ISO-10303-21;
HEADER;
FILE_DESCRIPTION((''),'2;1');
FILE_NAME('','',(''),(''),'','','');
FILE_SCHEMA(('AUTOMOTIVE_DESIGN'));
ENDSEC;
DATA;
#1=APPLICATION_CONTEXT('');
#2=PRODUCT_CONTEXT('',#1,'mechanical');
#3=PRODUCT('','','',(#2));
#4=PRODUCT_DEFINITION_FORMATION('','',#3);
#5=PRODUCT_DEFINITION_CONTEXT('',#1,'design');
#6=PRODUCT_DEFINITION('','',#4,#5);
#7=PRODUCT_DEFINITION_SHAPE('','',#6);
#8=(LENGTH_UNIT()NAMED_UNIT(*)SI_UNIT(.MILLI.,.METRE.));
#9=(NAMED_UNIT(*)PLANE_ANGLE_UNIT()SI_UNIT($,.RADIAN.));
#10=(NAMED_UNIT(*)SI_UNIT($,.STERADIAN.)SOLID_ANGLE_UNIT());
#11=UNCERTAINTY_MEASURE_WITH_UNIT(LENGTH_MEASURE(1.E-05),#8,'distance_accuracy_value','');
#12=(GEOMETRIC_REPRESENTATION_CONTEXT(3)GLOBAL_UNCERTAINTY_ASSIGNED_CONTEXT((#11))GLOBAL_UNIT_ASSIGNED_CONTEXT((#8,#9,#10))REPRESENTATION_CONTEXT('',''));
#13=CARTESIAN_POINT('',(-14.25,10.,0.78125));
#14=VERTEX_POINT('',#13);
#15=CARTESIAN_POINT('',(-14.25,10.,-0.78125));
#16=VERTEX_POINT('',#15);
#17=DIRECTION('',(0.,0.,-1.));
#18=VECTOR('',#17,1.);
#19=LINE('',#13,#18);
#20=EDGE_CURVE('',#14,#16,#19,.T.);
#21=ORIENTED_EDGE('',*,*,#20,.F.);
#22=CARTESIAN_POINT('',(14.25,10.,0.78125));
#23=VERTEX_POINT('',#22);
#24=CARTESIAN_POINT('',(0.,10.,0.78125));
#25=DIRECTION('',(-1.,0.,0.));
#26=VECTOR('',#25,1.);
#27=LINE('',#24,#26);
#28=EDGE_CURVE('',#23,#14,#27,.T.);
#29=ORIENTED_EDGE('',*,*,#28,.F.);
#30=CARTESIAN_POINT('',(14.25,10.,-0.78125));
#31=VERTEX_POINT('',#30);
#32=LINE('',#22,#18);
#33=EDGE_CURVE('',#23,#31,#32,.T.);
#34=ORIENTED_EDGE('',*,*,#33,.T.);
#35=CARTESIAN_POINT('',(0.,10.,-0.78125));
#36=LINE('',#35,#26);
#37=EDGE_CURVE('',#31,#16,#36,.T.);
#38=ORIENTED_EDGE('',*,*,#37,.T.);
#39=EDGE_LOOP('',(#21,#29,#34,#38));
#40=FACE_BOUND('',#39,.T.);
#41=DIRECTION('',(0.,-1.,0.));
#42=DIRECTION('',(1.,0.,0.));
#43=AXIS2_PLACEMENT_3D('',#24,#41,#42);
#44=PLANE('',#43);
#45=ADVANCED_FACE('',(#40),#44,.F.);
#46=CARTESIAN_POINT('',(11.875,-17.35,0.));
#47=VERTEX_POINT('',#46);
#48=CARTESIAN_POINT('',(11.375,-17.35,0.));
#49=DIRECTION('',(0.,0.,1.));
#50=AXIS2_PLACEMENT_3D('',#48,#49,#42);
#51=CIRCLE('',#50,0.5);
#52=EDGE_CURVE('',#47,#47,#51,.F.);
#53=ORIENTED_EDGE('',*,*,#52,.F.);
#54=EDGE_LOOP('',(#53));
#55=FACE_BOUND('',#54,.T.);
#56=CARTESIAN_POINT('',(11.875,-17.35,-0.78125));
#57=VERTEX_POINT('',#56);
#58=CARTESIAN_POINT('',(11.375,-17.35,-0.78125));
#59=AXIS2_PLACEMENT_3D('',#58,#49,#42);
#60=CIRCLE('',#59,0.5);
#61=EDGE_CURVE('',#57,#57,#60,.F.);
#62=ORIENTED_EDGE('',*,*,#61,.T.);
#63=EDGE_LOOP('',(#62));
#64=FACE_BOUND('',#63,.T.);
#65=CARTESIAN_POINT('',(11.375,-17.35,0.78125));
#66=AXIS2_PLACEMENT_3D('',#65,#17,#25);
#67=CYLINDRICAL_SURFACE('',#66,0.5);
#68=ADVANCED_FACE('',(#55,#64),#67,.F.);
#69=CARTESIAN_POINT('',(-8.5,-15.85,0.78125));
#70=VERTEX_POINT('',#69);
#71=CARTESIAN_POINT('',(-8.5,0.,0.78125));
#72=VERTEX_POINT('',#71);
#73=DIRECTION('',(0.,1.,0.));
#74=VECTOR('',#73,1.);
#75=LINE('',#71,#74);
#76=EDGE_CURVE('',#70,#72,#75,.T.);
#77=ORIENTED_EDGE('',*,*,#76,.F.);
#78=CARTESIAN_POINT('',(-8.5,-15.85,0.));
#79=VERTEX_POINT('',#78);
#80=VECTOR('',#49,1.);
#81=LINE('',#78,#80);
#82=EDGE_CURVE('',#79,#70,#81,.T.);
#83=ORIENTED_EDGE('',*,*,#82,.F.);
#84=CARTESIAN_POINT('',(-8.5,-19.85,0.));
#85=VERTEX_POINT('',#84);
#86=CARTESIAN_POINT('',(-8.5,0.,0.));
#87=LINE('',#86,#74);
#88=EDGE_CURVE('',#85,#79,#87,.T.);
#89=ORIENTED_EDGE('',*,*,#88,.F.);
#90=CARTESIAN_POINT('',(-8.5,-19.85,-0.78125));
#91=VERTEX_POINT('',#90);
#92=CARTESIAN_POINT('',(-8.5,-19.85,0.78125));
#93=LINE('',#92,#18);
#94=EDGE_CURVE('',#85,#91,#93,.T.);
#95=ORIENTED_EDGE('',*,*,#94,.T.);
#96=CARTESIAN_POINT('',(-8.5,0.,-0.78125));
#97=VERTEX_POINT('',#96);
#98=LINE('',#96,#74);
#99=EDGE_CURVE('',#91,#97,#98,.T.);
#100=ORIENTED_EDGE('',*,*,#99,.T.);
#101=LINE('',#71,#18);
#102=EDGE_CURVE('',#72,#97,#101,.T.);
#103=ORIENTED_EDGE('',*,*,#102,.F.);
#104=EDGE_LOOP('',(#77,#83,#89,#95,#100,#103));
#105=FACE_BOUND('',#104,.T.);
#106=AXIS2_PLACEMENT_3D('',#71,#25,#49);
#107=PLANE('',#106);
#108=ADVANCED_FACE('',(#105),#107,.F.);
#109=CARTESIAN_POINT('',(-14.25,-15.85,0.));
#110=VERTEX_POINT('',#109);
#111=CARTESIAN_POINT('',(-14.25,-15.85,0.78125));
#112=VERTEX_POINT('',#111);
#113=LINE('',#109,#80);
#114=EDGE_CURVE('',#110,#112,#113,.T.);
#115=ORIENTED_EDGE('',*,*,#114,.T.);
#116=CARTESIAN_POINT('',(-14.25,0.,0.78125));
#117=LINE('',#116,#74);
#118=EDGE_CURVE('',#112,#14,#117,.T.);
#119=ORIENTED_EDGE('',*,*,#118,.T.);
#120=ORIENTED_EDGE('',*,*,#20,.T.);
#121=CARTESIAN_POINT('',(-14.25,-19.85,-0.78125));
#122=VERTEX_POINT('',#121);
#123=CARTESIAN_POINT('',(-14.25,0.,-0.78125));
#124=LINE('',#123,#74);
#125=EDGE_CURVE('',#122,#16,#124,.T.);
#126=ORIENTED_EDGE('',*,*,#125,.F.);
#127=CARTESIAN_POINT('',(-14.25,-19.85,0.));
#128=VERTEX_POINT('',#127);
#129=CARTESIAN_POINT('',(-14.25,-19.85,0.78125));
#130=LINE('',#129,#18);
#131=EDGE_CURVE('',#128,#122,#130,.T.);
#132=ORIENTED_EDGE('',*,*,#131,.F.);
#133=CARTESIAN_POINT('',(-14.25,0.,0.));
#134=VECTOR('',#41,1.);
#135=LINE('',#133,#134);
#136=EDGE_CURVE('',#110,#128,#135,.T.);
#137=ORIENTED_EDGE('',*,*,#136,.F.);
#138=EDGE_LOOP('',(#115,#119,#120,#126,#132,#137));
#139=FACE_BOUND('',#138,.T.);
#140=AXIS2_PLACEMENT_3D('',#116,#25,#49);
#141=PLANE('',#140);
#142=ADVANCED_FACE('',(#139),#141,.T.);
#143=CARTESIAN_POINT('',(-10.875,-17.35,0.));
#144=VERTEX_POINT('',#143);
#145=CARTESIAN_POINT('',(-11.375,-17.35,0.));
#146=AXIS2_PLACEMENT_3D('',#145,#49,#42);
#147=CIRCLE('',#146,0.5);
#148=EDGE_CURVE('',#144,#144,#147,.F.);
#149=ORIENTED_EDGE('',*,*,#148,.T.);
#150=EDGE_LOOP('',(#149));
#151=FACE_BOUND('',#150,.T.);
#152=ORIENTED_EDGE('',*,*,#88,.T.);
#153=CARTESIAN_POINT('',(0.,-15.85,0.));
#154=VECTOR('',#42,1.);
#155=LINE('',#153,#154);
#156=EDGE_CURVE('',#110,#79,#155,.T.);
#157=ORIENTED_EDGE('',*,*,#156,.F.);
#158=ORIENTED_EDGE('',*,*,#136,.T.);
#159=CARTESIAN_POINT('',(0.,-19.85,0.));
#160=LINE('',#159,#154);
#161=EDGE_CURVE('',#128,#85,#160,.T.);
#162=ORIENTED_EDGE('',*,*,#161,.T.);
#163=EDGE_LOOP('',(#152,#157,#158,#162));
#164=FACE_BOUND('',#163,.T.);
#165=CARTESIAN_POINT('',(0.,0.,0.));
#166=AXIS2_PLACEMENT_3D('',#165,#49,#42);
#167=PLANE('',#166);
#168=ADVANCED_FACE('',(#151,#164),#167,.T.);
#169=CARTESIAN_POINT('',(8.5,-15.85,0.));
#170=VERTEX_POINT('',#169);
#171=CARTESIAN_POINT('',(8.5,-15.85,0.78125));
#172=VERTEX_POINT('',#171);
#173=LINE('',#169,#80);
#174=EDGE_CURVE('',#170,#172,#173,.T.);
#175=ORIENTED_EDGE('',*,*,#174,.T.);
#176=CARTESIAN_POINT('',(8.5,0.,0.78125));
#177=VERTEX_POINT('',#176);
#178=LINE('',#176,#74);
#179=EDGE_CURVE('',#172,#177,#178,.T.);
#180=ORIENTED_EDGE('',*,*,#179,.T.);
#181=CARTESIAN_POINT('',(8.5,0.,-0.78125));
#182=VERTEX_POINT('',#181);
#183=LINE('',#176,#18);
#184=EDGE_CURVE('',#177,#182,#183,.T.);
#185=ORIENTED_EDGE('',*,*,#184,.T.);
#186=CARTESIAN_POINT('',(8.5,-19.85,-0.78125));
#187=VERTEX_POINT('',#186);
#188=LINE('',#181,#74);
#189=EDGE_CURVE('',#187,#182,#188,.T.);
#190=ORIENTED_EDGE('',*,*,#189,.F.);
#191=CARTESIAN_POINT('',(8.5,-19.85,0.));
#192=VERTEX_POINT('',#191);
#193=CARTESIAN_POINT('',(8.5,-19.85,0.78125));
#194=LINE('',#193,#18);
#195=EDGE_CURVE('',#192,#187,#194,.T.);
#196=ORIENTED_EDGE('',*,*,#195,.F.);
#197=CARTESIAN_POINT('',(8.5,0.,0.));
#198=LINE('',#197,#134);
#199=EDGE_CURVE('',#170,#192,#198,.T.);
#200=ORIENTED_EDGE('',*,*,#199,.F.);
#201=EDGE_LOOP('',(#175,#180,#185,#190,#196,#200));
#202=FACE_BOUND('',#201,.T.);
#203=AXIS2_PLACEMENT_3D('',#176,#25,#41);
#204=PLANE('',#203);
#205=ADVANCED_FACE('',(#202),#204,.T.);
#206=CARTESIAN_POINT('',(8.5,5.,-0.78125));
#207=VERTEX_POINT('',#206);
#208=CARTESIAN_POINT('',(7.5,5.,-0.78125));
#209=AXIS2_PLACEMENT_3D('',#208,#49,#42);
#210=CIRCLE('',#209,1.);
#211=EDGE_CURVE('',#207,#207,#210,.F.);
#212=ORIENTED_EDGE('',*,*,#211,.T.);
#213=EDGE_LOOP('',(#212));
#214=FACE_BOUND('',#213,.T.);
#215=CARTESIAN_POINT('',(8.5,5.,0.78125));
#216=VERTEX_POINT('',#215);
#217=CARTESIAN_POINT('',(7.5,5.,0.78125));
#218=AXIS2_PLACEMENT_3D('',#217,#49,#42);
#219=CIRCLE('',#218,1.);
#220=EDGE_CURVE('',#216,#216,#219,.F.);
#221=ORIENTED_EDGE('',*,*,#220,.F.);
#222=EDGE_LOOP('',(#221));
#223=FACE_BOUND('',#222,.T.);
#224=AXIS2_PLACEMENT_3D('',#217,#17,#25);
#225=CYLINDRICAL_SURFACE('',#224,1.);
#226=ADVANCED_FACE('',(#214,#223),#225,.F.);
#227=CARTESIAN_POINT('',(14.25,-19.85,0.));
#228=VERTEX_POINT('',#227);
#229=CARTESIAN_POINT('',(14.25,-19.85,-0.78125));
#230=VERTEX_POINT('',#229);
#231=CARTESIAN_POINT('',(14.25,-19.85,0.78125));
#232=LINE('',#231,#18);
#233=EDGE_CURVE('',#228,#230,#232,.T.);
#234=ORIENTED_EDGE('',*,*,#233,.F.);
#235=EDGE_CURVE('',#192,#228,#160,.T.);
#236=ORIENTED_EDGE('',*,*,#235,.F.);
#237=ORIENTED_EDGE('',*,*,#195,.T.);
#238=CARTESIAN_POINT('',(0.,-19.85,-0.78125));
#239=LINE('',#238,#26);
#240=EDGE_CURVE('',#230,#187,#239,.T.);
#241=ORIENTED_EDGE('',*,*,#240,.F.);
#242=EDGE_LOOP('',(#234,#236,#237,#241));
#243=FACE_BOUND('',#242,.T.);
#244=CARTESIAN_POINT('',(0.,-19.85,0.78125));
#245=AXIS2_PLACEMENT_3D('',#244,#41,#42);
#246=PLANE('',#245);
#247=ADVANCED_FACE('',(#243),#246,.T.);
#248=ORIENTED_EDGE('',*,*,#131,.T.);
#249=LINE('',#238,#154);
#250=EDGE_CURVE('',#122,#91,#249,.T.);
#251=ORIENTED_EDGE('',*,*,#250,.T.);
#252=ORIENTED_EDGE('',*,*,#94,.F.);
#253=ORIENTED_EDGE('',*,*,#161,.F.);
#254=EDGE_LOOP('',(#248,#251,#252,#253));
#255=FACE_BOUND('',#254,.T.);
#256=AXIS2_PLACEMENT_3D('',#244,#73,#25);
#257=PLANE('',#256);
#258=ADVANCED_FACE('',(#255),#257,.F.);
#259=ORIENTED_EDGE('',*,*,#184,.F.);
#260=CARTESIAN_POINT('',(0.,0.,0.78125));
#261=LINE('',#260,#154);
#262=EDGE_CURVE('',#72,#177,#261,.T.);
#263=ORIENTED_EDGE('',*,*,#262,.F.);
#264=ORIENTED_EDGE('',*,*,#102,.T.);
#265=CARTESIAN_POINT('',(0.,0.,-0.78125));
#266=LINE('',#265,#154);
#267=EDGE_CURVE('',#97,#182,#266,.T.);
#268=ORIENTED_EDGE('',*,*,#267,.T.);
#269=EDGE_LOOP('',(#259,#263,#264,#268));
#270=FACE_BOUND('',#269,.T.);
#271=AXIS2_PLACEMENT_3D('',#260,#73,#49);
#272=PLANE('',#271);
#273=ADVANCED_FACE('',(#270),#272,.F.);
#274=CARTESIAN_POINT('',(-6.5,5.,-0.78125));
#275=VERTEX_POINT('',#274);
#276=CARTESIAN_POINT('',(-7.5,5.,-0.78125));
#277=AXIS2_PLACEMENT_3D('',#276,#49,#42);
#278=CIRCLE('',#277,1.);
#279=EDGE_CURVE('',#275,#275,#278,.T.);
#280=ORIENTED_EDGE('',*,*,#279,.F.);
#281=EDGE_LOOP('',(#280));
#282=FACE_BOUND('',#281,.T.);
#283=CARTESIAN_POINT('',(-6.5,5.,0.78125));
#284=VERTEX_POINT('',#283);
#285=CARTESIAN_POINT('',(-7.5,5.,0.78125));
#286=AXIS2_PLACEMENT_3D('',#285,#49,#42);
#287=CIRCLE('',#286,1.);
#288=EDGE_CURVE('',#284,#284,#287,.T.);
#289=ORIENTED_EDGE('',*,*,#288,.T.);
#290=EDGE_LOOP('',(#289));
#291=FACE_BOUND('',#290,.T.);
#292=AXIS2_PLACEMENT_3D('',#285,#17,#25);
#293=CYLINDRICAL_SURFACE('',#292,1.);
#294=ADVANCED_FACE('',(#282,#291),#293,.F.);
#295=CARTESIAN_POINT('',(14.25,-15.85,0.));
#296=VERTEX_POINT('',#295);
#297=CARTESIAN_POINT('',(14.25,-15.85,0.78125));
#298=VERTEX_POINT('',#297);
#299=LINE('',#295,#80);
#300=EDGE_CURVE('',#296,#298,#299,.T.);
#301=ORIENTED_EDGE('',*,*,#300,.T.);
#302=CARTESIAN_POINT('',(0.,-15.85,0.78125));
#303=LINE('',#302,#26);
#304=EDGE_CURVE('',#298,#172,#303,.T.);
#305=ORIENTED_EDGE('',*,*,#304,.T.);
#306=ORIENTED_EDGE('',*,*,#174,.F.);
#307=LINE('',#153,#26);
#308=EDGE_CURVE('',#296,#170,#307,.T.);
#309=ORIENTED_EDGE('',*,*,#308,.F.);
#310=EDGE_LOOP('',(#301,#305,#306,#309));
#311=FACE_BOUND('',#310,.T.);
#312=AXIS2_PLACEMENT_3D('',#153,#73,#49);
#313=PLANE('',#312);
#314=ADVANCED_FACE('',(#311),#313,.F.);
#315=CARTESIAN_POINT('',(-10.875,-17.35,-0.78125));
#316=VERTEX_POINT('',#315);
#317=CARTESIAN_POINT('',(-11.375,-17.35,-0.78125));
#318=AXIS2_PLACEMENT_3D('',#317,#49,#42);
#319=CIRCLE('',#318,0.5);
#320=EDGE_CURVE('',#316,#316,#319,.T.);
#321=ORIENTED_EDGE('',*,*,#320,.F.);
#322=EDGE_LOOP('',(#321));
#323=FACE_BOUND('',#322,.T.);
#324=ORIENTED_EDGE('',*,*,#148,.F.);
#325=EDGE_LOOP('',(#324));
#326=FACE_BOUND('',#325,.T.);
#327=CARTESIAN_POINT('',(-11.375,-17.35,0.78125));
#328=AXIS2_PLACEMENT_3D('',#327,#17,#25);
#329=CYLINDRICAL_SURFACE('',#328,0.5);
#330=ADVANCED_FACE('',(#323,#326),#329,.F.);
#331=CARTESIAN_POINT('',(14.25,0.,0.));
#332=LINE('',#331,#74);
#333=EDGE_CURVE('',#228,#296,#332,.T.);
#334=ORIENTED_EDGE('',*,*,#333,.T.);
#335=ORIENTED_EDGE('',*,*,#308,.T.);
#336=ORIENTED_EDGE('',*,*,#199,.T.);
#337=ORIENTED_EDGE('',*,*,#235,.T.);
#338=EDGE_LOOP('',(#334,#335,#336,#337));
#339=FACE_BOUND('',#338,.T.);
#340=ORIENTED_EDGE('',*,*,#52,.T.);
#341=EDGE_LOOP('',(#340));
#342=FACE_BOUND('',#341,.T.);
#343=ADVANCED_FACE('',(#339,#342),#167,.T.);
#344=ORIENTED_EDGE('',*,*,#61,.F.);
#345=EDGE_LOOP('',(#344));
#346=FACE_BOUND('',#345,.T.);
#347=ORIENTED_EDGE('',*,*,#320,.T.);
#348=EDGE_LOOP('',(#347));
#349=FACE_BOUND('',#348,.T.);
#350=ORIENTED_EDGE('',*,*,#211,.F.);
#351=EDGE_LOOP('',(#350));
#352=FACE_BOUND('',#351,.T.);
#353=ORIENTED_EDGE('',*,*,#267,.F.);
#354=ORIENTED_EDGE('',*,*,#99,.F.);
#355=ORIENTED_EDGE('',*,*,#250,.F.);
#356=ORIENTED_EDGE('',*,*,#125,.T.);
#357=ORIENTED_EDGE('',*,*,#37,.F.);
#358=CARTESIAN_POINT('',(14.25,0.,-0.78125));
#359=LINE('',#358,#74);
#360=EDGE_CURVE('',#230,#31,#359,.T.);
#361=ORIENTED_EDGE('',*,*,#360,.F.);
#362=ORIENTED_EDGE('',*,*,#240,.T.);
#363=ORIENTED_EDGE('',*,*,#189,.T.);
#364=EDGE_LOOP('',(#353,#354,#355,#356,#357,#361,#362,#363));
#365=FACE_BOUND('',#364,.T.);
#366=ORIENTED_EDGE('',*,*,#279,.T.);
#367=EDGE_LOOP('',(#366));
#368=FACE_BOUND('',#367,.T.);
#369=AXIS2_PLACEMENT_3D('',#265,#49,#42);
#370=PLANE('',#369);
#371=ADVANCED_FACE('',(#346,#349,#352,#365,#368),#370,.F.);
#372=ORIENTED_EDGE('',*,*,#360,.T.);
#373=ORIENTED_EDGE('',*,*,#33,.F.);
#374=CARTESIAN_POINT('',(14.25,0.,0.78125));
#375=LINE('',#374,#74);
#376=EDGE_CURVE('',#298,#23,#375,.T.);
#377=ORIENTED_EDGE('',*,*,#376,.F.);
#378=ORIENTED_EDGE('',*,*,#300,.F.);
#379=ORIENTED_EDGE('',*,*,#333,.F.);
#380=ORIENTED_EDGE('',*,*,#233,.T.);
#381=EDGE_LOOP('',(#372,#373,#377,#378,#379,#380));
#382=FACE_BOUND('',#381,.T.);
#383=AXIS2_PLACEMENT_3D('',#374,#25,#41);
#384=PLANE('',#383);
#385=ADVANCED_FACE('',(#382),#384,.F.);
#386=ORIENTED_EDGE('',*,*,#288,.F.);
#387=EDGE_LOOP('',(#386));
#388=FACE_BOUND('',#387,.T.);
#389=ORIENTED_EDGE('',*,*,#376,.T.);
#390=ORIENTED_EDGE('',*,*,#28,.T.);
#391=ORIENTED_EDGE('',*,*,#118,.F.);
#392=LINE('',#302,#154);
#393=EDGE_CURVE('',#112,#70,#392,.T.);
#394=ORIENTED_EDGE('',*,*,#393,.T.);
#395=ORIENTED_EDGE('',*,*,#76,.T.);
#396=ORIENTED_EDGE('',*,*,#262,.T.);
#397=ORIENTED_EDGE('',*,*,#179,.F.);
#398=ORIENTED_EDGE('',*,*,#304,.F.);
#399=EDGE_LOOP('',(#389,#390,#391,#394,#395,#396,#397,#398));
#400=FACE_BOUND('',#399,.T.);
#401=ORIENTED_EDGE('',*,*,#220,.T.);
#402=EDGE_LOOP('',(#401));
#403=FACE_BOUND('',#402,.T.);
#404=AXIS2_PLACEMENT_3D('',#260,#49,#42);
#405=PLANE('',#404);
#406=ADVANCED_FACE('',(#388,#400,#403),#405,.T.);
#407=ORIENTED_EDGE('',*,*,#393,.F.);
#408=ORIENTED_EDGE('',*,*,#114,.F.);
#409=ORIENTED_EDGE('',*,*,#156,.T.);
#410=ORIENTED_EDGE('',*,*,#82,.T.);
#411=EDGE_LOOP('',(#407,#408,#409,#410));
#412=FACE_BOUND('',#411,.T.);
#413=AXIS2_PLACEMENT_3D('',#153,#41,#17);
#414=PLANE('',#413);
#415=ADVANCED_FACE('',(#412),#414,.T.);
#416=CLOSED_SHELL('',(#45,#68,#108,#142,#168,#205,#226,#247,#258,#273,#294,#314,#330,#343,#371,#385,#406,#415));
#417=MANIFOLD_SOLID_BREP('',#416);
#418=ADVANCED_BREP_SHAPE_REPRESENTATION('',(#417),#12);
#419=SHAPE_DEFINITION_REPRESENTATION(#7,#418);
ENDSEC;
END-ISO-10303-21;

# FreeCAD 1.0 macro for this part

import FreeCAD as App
import Part
import Sketcher


def add_polygon(sketch, points):
    """Adds a closed chain of lines whose ends are joined by coincident constraints."""
    first, n = sketch.GeometryCount, len(points)
    for a, b in zip(points, points[1:] + points[:1]):
        sketch.addGeometry(Part.LineSegment(App.Vector(*a, 0), App.Vector(*b, 0)), False)
    for i in range(n):
        sketch.addConstraint(Sketcher.Constraint("Coincident", first + i, 2, first + (i + 1) % n, 1))

doc = App.newDocument("Part")
body = doc.addObject("PartDesign::Body", "Body")

sketch1 = body.newObject("Sketcher::SketchObject", "Sketch")
sketch1.AttachmentSupport = (doc.getObject("XY_Plane"), [""])
sketch1.MapMode = "FlatFace"
add_polygon(sketch1, [(-8.5, -19.85), (-8.5, 0), (8.5, 0), (8.5, -19.85), (14.25, -19.85), (14.25, 10), (-14.25, 10), (-14.25, -19.85)])
sketch1.addGeometry(Part.Circle(App.Vector(-11.375, -17.35, 0), App.Vector(0, 0, 1), 0.5), False)
sketch1.addGeometry(Part.Circle(App.Vector(11.375, -17.35, 0), App.Vector(0, 0, 1), 0.5), False)
sketch1.addGeometry(Part.Circle(App.Vector(-7.5, 5, 0), App.Vector(0, 0, 1), 1), False)
sketch1.addGeometry(Part.Circle(App.Vector(7.5, 5, 0), App.Vector(0, 0, 1), 1), False)
sketch1.addConstraint([
    Sketcher.Constraint("Vertical", 0),
    Sketcher.Constraint("Horizontal", 1),
    Sketcher.Constraint("Vertical", 2),
    Sketcher.Constraint("Horizontal", 3),
    Sketcher.Constraint("Vertical", 4),
    Sketcher.Constraint("Horizontal", 5),
    Sketcher.Constraint("Vertical", 6),
    Sketcher.Constraint("Horizontal", 7),
    Sketcher.Constraint("Equal", 8, 9),
    Sketcher.Constraint("Equal", 10, 11),
    Sketcher.Constraint("Symmetric", 0, 2, 1, 2, -1, 1),
    Sketcher.Constraint("Symmetric", 8, 3, 9, 3, -2),
    Sketcher.Constraint("Symmetric", 10, 3, 11, 3, -2),
    Sketcher.Constraint("Symmetric", 3, 2, 6, 2, -2),
    Sketcher.Constraint("Diameter", 8, 1.0),
    Sketcher.Constraint("Diameter", 10, 2.0),
    Sketcher.Constraint("DistanceX", 1, 1, 1, 2, 17.0),
    Sketcher.Constraint("DistanceX", 5, 2, 5, 1, 28.5),
    Sketcher.Constraint("DistanceY", -1, 1, 10, 3, 5.0),
    Sketcher.Constraint("DistanceY", -1, 1, 4, 2, 10.0),
    Sketcher.Constraint("DistanceX", 10, 3, 11, 3, 15.0),
    Sketcher.Constraint("DistanceY", 0, 1, 0, 2, 19.85),
    Sketcher.Constraint("DistanceY", 2, 2, 9, 3, 2.5),
    Sketcher.Constraint("DistanceX", 8, 3, 9, 3, 22.75),
])
pad1 = body.newObject("PartDesign::Pad", "Pad")
pad1.Profile = sketch1
pad1.Length = 1.5625
pad1.Midplane = True

sketch2 = body.newObject("Sketcher::SketchObject", "Sketch001")
sketch2.AttachmentSupport = (doc.getObject("XY_Plane"), [""])
sketch2.MapMode = "FlatFace"
sketch2.AttachmentOffset = App.Placement(App.Vector(0, 0, 0.78125), App.Rotation())
add_polygon(sketch2, [(-14.25, -15.85), (-14.25, -19.85), (-8.5, -19.85), (-8.5, -15.85)])
add_polygon(sketch2, [(8.5, -15.85), (8.5, -19.85), (14.25, -19.85), (14.25, -15.85)])
sketch2.addConstraint([
    Sketcher.Constraint("Vertical", 0),
    Sketcher.Constraint("Horizontal", 1),
    Sketcher.Constraint("Vertical", 2),
    Sketcher.Constraint("Horizontal", 3),
    Sketcher.Constraint("Vertical", 4),
    Sketcher.Constraint("Horizontal", 5),
    Sketcher.Constraint("Vertical", 6),
    Sketcher.Constraint("Horizontal", 7),
    Sketcher.Constraint("Symmetric", 1, 2, 4, 2, -2),
    Sketcher.Constraint("Symmetric", 3, 2, 6, 2, -2),
    Sketcher.Constraint("DistanceY", 0, 2, 0, 1, 4.0),
    Sketcher.Constraint("DistanceX", 1, 2, 4, 2, 17.0),
    Sketcher.Constraint("DistanceX", 1, 1, 1, 2, 5.75),
    Sketcher.Constraint("DistanceY", 0, 2, -1, 1, 19.85),
])
pocket1 = body.newObject("PartDesign::Pocket", "Pocket")
pocket1.Profile = sketch2
pocket1.Length = 0.78125

doc.recompute()
